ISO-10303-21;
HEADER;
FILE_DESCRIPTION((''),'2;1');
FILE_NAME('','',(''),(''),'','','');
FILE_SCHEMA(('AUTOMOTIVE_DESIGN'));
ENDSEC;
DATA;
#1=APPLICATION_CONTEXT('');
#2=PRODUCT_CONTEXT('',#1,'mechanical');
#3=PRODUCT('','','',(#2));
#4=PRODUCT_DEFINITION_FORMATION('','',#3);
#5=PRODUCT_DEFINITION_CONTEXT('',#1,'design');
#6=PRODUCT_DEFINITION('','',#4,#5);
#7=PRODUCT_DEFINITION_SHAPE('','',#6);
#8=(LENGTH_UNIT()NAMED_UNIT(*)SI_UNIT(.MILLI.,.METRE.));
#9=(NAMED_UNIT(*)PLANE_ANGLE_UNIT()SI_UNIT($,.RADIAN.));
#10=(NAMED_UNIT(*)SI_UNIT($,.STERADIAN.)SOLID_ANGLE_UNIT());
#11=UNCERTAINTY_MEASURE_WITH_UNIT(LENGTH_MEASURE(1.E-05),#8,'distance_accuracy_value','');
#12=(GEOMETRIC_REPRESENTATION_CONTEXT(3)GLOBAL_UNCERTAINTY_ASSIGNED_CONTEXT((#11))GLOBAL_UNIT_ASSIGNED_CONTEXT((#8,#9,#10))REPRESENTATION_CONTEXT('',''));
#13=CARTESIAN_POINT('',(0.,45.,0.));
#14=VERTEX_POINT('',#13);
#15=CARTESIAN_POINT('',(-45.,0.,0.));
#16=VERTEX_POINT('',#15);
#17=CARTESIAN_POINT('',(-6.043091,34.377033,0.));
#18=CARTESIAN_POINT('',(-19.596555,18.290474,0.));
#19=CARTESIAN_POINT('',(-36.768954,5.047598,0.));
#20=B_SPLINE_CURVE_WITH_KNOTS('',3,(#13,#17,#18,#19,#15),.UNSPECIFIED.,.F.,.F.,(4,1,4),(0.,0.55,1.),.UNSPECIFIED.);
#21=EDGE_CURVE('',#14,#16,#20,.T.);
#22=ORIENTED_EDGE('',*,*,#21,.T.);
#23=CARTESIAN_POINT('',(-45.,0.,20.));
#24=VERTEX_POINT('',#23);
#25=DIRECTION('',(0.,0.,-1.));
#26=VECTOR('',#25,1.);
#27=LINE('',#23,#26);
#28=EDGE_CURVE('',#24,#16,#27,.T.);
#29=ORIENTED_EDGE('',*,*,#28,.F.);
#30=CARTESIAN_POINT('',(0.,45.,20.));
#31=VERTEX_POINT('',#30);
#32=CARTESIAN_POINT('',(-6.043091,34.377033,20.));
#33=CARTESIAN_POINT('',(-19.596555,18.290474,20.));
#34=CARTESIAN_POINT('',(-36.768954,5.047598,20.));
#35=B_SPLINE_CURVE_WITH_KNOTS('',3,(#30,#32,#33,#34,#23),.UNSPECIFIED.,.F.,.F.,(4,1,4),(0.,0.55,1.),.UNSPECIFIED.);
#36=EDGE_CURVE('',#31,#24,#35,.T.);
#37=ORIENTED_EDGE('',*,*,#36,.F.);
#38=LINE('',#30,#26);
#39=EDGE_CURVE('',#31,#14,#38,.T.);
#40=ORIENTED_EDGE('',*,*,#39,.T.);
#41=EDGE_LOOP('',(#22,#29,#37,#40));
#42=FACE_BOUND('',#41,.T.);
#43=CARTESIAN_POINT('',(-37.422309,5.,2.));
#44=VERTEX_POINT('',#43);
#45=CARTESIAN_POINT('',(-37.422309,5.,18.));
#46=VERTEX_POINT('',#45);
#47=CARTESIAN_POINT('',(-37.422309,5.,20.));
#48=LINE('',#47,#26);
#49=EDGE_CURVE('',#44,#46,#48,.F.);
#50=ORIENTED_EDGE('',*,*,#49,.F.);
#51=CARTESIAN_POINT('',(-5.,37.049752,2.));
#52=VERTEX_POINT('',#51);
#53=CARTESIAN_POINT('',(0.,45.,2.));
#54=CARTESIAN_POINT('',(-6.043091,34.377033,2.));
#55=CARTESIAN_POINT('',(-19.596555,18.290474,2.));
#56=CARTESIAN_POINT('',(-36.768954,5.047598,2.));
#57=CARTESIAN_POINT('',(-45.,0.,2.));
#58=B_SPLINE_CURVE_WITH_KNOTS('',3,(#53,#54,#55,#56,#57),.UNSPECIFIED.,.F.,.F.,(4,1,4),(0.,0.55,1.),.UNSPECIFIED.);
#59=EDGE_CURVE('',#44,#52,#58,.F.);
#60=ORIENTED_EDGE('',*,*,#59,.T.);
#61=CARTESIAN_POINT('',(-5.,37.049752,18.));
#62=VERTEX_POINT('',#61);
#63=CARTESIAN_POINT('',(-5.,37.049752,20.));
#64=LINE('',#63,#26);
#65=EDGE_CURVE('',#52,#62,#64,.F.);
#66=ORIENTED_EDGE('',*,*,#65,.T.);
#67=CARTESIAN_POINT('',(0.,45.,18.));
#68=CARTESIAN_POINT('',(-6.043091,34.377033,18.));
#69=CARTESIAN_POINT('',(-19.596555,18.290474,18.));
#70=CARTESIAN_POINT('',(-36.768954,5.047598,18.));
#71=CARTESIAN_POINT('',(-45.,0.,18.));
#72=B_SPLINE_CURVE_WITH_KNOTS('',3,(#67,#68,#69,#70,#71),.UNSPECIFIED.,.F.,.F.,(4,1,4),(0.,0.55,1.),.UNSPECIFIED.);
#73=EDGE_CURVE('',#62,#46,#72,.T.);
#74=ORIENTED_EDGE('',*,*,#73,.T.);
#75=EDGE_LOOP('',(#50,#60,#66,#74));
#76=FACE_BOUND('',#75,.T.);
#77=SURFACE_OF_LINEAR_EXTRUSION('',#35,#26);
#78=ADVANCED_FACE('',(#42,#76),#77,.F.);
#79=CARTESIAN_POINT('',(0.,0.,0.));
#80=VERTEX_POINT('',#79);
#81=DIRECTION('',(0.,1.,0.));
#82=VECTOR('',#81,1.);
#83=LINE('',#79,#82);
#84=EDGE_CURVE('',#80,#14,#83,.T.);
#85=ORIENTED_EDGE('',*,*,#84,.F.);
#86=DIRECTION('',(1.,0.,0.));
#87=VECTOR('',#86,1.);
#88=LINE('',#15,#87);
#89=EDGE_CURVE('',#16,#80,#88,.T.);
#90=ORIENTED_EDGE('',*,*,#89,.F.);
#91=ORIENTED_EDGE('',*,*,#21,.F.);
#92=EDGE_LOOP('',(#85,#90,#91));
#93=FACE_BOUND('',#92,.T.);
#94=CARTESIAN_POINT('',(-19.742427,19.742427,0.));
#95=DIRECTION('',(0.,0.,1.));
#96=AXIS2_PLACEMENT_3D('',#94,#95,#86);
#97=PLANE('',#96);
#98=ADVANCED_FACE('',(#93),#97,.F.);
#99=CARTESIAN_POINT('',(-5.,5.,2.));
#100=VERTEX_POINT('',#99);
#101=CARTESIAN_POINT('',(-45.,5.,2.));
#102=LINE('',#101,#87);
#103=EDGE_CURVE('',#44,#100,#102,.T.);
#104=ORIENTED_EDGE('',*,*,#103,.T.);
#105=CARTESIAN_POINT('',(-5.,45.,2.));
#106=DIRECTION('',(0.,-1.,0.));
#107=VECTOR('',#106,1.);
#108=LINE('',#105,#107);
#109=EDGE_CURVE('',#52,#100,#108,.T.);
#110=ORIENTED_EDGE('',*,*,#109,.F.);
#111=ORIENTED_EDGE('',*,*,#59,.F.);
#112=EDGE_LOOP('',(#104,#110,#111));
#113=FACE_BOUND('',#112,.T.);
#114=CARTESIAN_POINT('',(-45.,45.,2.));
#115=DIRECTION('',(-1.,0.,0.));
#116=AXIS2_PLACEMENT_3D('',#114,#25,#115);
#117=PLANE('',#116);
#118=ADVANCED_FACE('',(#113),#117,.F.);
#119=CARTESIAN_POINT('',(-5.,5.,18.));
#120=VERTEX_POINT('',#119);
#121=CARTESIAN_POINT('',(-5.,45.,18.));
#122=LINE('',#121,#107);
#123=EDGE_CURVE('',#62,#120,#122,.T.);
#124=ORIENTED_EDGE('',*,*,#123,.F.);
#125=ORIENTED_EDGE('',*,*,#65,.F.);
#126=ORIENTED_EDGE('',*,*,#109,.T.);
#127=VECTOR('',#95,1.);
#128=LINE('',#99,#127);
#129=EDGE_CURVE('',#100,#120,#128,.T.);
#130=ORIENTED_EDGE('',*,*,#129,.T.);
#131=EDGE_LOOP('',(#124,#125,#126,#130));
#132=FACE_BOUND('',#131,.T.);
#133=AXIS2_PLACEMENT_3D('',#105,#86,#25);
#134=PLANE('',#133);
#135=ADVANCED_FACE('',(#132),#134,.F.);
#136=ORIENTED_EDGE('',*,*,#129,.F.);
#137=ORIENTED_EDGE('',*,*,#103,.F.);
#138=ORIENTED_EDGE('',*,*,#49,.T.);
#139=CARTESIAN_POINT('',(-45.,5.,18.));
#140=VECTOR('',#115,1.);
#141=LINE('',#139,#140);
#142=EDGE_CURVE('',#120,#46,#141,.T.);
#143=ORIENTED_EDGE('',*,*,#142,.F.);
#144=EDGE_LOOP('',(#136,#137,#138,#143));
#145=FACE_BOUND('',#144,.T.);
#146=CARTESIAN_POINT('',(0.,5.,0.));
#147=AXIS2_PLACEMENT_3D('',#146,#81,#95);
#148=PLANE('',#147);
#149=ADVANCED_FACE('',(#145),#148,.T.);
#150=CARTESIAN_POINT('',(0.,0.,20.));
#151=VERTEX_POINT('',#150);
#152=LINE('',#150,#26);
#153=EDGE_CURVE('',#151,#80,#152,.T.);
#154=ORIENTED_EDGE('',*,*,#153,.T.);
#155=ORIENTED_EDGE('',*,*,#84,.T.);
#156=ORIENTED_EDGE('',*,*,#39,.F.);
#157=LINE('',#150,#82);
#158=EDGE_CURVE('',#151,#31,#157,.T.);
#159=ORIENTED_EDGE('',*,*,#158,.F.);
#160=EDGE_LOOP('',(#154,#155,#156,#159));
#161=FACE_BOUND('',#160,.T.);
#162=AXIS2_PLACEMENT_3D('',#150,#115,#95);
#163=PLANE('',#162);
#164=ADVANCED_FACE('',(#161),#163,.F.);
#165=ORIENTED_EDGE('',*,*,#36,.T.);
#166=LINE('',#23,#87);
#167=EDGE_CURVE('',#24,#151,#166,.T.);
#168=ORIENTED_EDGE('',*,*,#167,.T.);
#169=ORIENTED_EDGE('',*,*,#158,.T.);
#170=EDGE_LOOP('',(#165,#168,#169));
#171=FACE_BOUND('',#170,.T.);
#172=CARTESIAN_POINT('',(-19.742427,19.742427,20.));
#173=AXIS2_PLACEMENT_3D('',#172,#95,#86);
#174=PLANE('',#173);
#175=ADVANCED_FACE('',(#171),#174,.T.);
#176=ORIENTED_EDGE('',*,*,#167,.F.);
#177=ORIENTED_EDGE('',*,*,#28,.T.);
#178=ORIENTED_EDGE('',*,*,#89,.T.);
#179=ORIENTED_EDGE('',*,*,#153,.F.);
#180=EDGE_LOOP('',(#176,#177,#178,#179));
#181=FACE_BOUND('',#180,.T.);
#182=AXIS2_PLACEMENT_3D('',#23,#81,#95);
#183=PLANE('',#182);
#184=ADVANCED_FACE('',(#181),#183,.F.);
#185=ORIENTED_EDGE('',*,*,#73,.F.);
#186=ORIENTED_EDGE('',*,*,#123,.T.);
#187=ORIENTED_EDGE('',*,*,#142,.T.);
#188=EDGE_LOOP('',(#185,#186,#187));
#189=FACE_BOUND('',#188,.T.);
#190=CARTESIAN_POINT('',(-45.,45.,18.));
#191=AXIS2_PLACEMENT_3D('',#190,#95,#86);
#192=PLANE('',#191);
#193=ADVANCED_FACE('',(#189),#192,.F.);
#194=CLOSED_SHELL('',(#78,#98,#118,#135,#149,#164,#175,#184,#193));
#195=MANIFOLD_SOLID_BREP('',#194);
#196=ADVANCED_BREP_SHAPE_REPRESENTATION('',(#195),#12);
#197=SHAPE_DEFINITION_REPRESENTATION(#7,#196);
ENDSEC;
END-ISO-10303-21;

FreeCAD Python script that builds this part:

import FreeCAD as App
import Part
import Sketcher
from FreeCAD import Vector
Q = App.Units.Quantity

doc = App.newDocument("Part")
body = doc.addObject("PartDesign::Body", "Body")

# Sketch on XY plane
sketch1 = body.newObject("Sketcher::SketchObject", "Sketch")
sketch1.AttachmentSupport = (doc.getObject("XY_Plane"), [""])
sketch1.MapMode = "FlatFace"
sketch1.addGeometry([
    Part.LineSegment(Vector(0, 0, 0), Vector(0, 45, 0)),
    Part.BSplineCurve([Vector(0, 45, 0), Vector(-6.043091, 34.377033, 0), Vector(-19.596555, 18.290474, 0), Vector(-36.768954, 5.047598, 0), Vector(-45, 0, 0)], [4, 1, 4], [0, 0.55, 1], False, 3, [1, 1, 1, 1, 1], False),
    Part.LineSegment(Vector(-45, 0, 0), Vector(0, 0, 0)),
], False)
sketch1.addConstraint([
    Sketcher.Constraint("Block", 1),
    Sketcher.Constraint("Coincident", 0, 2, 1, 1),
    Sketcher.Constraint("Coincident", 1, 2, 2, 1),
    Sketcher.Constraint("Coincident", 2, 2, 0, 1),
    Sketcher.Constraint("Vertical", 0),
    Sketcher.Constraint("Horizontal", 2),
])
pad1 = body.newObject("PartDesign::Pad", "Pad")
pad1.Profile = sketch1
pad1.Length = 20

# Sketch on XZ plane
sketch2 = body.newObject("Sketcher::SketchObject", "Sketch001")
sketch2.AttachmentSupport = (doc.getObject("XZ_Plane"), [""])
sketch2.MapMode = "FlatFace"
sketch2.AttachmentOffset = App.Placement(Vector(0, 0, -5), App.Rotation())
sketch2.addGeometry([
    Part.LineSegment(Vector(-45, 18, 0), Vector(-45, 2, 0)),
    Part.LineSegment(Vector(-45, 2, 0), Vector(-5, 2, 0)),
    Part.LineSegment(Vector(-5, 2, 0), Vector(-5, 18, 0)),
    Part.LineSegment(Vector(-5, 18, 0), Vector(-45, 18, 0)),
], False)
sketch2.addConstraint([
    Sketcher.Constraint("Coincident", 0, 2, 1, 1),
    Sketcher.Constraint("Coincident", 1, 2, 2, 1),
    Sketcher.Constraint("Coincident", 2, 2, 3, 1),
    Sketcher.Constraint("Coincident", 3, 2, 0, 1),
    Sketcher.Constraint("Vertical", 0),
    Sketcher.Constraint("Horizontal", 1),
    Sketcher.Constraint("Vertical", 2),
    Sketcher.Constraint("Horizontal", 3),
    Sketcher.Constraint("DistanceX", 1, 1, 1, 2, Q("40 mm")),
    Sketcher.Constraint("DistanceY", 0, 2, 0, 1, Q("16 mm")),
    Sketcher.Constraint("DistanceX", 0, 2, -1, 1, Q("45 mm")),
    Sketcher.Constraint("DistanceY", -1, 1, 0, 2, Q("2 mm")),
])
pocket1 = body.newObject("PartDesign::Pocket", "Pocket")
pocket1.Profile = sketch2
pocket1.Type = "ThroughAll"

doc.recompute()
